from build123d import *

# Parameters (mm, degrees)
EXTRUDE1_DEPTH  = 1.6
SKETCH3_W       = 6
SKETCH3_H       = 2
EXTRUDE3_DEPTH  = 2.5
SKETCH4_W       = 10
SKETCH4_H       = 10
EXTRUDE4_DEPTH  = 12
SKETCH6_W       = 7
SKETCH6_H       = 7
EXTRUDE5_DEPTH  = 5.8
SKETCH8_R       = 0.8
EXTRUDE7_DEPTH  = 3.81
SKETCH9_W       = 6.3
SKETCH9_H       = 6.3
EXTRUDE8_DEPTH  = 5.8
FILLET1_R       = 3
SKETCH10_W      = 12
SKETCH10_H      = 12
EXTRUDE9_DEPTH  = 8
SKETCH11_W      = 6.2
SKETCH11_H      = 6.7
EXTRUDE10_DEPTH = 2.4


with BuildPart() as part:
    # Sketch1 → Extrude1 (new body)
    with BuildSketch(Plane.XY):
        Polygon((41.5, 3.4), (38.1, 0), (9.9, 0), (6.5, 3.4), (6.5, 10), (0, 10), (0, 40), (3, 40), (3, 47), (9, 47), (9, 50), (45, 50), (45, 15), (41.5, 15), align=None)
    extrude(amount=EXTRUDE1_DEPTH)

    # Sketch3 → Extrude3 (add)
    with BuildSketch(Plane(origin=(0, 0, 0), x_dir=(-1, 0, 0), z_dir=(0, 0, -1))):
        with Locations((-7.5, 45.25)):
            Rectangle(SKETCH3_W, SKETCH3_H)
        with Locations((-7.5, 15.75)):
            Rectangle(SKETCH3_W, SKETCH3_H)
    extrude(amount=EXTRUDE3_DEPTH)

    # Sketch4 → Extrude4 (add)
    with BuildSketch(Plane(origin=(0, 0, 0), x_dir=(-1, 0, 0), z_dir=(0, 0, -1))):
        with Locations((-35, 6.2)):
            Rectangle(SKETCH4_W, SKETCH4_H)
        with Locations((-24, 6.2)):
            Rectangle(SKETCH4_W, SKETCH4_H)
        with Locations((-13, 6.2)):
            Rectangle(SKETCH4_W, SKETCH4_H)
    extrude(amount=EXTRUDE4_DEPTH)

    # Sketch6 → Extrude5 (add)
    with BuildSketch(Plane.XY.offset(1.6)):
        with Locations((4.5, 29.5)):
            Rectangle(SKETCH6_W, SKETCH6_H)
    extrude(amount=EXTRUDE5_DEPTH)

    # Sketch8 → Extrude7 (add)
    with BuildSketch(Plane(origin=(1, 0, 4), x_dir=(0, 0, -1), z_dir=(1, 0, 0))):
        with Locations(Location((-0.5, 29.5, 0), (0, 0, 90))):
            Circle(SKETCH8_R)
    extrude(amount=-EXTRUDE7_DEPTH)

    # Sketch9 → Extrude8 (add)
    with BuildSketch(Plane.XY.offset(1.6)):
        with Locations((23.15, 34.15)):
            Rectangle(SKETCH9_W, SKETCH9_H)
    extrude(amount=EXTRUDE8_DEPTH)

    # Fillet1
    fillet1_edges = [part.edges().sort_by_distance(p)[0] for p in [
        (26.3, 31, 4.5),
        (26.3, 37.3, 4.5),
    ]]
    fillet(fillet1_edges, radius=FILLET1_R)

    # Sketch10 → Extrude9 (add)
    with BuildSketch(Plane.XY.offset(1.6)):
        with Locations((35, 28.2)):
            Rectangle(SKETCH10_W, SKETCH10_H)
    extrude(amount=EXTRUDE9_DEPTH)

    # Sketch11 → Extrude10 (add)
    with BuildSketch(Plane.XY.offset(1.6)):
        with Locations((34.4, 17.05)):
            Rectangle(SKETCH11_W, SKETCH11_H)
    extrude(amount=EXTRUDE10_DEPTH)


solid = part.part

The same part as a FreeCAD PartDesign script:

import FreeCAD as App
import Part
import Sketcher

V = App.Vector


def edges_at(feature, points):
    """Names of the edges that pass closest to the given points."""
    edges = feature.Shape.Edges
    near = lambda p: min(range(len(edges)), key=lambda i: edges[i].distToShape(Part.Vertex(*p))[0])
    return sorted({f"Edge{near(p) + 1}" for p in points})

doc = App.newDocument("Part")
params = doc.addObject("Spreadsheet::Sheet", "Params")
for row, (alias, value) in enumerate([
    ("sketch1_width", "36 mm"),
    ("sketch1_width2", "6 mm"),
    ("sketch1_width3", "3 mm"),
    ("sketch1_height", "35 mm"),
    ("sketch1_height2", "7 mm"),
    ("pad1_length", "1.6 mm"),
    ("sketch2_width", "6 mm"),
    ("sketch2_height", "2 mm"),
    ("pad2_length", "2.5 mm"),
    ("sketch3_width", "10 mm"),
    ("pad3_length", "12 mm"),
    ("sketch4_width", "7 mm"),
    ("pad4_length", "5.8 mm"),
    ("sketch5_diameter", "1.6 mm"),
    ("pad5_length", "3.81 mm"),
    ("sketch6_width", "6.3 mm"),
    ("pad6_length", "5.8 mm"),
    ("fillet_radius", "3 mm"),
    ("sketch7_width", "12 mm"),
    ("pad7_length", "8 mm"),
    ("sketch8_width", "6.2 mm"),
    ("sketch8_height", "6.7 mm"),
    ("pad8_length", "2.4 mm"),
], start=1):
    params.set(f"A{row}", alias)
    params.set(f"B{row}", "=" + value)
    params.setAlias(f"B{row}", alias)

body = doc.addObject("PartDesign::Body", "Body")

# Sketch on XY plane
sketch1 = doc.addObject("Sketcher::SketchObject", "Sketch")
body.addObject(sketch1)
sketch1.AttachmentSupport = (doc.XY_Plane, [""])
sketch1.MapMode = "FlatFace"
sketch1.addGeometry([
    Part.LineSegment(V(38.1, 0, 0), V(41.5, 3.4, 0)),  # 0
    Part.LineSegment(V(41.5, 3.4, 0), V(41.5, 15, 0)),  # 1
    Part.LineSegment(V(41.5, 15, 0), V(45, 15, 0)),  # 2
    Part.LineSegment(V(45, 15, 0), V(45, 50, 0)),  # 3
    Part.LineSegment(V(45, 50, 0), V(9, 50, 0)),  # 4
    Part.LineSegment(V(9, 50, 0), V(9, 47, 0)),  # 5
    Part.LineSegment(V(9, 47, 0), V(3, 47, 0)),  # 6
    Part.LineSegment(V(3, 47, 0), V(3, 40, 0)),  # 7
    Part.LineSegment(V(3, 40, 0), V(0, 40, 0)),  # 8
    Part.LineSegment(V(0, 40, 0), V(0, 10, 0)),  # 9
    Part.LineSegment(V(0, 10, 0), V(6.5, 10, 0)),  # 10
    Part.LineSegment(V(6.5, 10, 0), V(6.5, 3.4, 0)),  # 11
    Part.LineSegment(V(6.5, 3.4, 0), V(9.9, 0, 0)),  # 12
    Part.LineSegment(V(9.9, 0, 0), V(38.1, 0, 0)),  # 13
], False)
sketch1.addConstraint([
    Sketcher.Constraint("Coincident", 0, 2, 1, 1),
    Sketcher.Constraint("Coincident", 1, 2, 2, 1),
    Sketcher.Constraint("Coincident", 2, 2, 3, 1),
    Sketcher.Constraint("Coincident", 3, 2, 4, 1),
    Sketcher.Constraint("Coincident", 4, 2, 5, 1),
    Sketcher.Constraint("Coincident", 5, 2, 6, 1),
    Sketcher.Constraint("Coincident", 6, 2, 7, 1),
    Sketcher.Constraint("Coincident", 7, 2, 8, 1),
    Sketcher.Constraint("Coincident", 8, 2, 9, 1),
    Sketcher.Constraint("Coincident", 9, 2, 10, 1),
    Sketcher.Constraint("Coincident", 10, 2, 11, 1),
    Sketcher.Constraint("Coincident", 11, 2, 12, 1),
    Sketcher.Constraint("Coincident", 12, 2, 13, 1),
    Sketcher.Constraint("Coincident", 13, 2, 0, 1),
    Sketcher.Constraint("Vertical", 1),
    Sketcher.Constraint("Horizontal", 2),
    Sketcher.Constraint("Vertical", 3),
    Sketcher.Constraint("Horizontal", 4),
    Sketcher.Constraint("Vertical", 5),
    Sketcher.Constraint("Horizontal", 6),
    Sketcher.Constraint("Vertical", 7),
    Sketcher.Constraint("Horizontal", 8),
    Sketcher.Constraint("Vertical", 9),
    Sketcher.Constraint("Horizontal", 10),
    Sketcher.Constraint("Vertical", 11),
    Sketcher.Constraint("Horizontal", 13),
    Sketcher.Constraint("PointOnObject", 8, 2, -2),
    Sketcher.Constraint("PointOnObject", 12, 2, -1),
    Sketcher.Constraint("Perpendicular", 0, 12),
    Sketcher.Constraint("Horizontal", 0, 2, 11, 2),
    Sketcher.Constraint("Equal", 8, 5),
    Sketcher.Constraint("Equal", 0, 12),
    Sketcher.Constraint("DistanceX", 4, 2, 4, 1, 36.0),
    Sketcher.Constraint("DistanceX", 6, 2, 6, 1, 6.0),
    Sketcher.Constraint("DistanceX", 8, 2, 8, 1, 3.0),
    Sketcher.Constraint("DistanceY", 3, 1, 3, 2, 35.0),
    Sketcher.Constraint("DistanceY", 7, 2, 7, 1, 7.0),
    Sketcher.Constraint("DistanceY", 9, 2, 9, 1, 30.0),
    Sketcher.Constraint("DistanceX", 2, 1, 2, 2, 3.5),
    Sketcher.Constraint("DistanceX", 10, 1, 10, 2, 6.5),
    Sketcher.Constraint("DistanceX", 13, 1, 13, 2, 28.2),
    Sketcher.Constraint("DistanceY", 1, 1, 1, 2, 11.6),
])
sketch1.setExpression("Constraints[32]", "Params.sketch1_width")
sketch1.setExpression("Constraints[33]", "Params.sketch1_width2")
sketch1.setExpression("Constraints[34]", "Params.sketch1_width3")
sketch1.setExpression("Constraints[35]", "Params.sketch1_height")
sketch1.setExpression("Constraints[36]", "Params.sketch1_height2")
pad1 = doc.addObject("PartDesign::Pad", "Pad")
body.addObject(pad1)
pad1.Profile = sketch1
pad1.setExpression("Length", "Params.pad1_length")

# Sketch on XY plane
sketch2 = doc.addObject("Sketcher::SketchObject", "Sketch001")
body.addObject(sketch2)
sketch2.AttachmentSupport = (doc.XY_Plane, [""])
sketch2.MapMode = "FlatFace"
sketch2.addGeometry([
    Part.LineSegment(V(10.5, 46.25, 0), V(10.5, 44.25, 0)),  # 0
    Part.LineSegment(V(10.5, 44.25, 0), V(4.5, 44.25, 0)),  # 1
    Part.LineSegment(V(4.5, 44.25, 0), V(4.5, 46.25, 0)),  # 2
    Part.LineSegment(V(4.5, 46.25, 0), V(10.5, 46.25, 0)),  # 3
    Part.LineSegment(V(10.5, 16.75, 0), V(10.5, 14.75, 0)),  # 4
    Part.LineSegment(V(10.5, 14.75, 0), V(4.5, 14.75, 0)),  # 5
    Part.LineSegment(V(4.5, 14.75, 0), V(4.5, 16.75, 0)),  # 6
    Part.LineSegment(V(4.5, 16.75, 0), V(10.5, 16.75, 0)),  # 7
], False)
sketch2.addConstraint([
    Sketcher.Constraint("Coincident", 0, 2, 1, 1),
    Sketcher.Constraint("Coincident", 1, 2, 2, 1),
    Sketcher.Constraint("Coincident", 2, 2, 3, 1),
    Sketcher.Constraint("Coincident", 3, 2, 0, 1),
    Sketcher.Constraint("Coincident", 4, 2, 5, 1),
    Sketcher.Constraint("Coincident", 5, 2, 6, 1),
    Sketcher.Constraint("Coincident", 6, 2, 7, 1),
    Sketcher.Constraint("Coincident", 7, 2, 4, 1),
    Sketcher.Constraint("Vertical", 0),
    Sketcher.Constraint("Horizontal", 1),
    Sketcher.Constraint("Vertical", 2),
    Sketcher.Constraint("Horizontal", 3),
    Sketcher.Constraint("Vertical", 4),
    Sketcher.Constraint("Horizontal", 5),
    Sketcher.Constraint("Vertical", 6),
    Sketcher.Constraint("Horizontal", 7),
    Sketcher.Constraint("Vertical", 3, 2, 4, 2),
    Sketcher.Constraint("Vertical", 2, 2, 5, 2),
    Sketcher.Constraint("Equal", 2, 4),
    Sketcher.Constraint("DistanceX", 1, 2, 1, 1, 6.0),
    Sketcher.Constraint("DistanceY", 0, 2, 0, 1, 2.0),
    Sketcher.Constraint("DistanceX", -1, 1, 0, 2, 10.5),
    Sketcher.Constraint("DistanceY", 4, 2, 0, 2, 29.5),
    Sketcher.Constraint("DistanceY", -1, 1, 0, 2, 44.25),
])
sketch2.setExpression("Constraints[19]", "Params.sketch2_width")
sketch2.setExpression("Constraints[20]", "Params.sketch2_height")
pad2 = doc.addObject("PartDesign::Pad", "Pad001")
body.addObject(pad2)
pad2.Profile = sketch2
pad2.setExpression("Length", "Params.pad2_length")
pad2.Reversed = True

# Sketch on XY plane
sketch3 = doc.addObject("Sketcher::SketchObject", "Sketch002")
body.addObject(sketch3)
sketch3.AttachmentSupport = (doc.XY_Plane, [""])
sketch3.MapMode = "FlatFace"
sketch3.addGeometry([
    Part.LineSegment(V(40, 11.2, 0), V(40, 1.2, 0)),  # 0
    Part.LineSegment(V(40, 1.2, 0), V(30, 1.2, 0)),  # 1
    Part.LineSegment(V(30, 1.2, 0), V(30, 11.2, 0)),  # 2
    Part.LineSegment(V(30, 11.2, 0), V(40, 11.2, 0)),  # 3
    Part.LineSegment(V(29, 11.2, 0), V(29, 1.2, 0)),  # 4
    Part.LineSegment(V(29, 1.2, 0), V(19, 1.2, 0)),  # 5
    Part.LineSegment(V(19, 1.2, 0), V(19, 11.2, 0)),  # 6
    Part.LineSegment(V(19, 11.2, 0), V(29, 11.2, 0)),  # 7
    Part.LineSegment(V(18, 11.2, 0), V(18, 1.2, 0)),  # 8
    Part.LineSegment(V(18, 1.2, 0), V(8, 1.2, 0)),  # 9
    Part.LineSegment(V(8, 1.2, 0), V(8, 11.2, 0)),  # 10
    Part.LineSegment(V(8, 11.2, 0), V(18, 11.2, 0)),  # 11
], False)
sketch3.addConstraint([
    Sketcher.Constraint("Coincident", 0, 2, 1, 1),
    Sketcher.Constraint("Coincident", 1, 2, 2, 1),
    Sketcher.Constraint("Coincident", 2, 2, 3, 1),
    Sketcher.Constraint("Coincident", 3, 2, 0, 1),
    Sketcher.Constraint("Coincident", 4, 2, 5, 1),
    Sketcher.Constraint("Coincident", 5, 2, 6, 1),
    Sketcher.Constraint("Coincident", 6, 2, 7, 1),
    Sketcher.Constraint("Coincident", 7, 2, 4, 1),
    Sketcher.Constraint("Coincident", 8, 2, 9, 1),
    Sketcher.Constraint("Coincident", 9, 2, 10, 1),
    Sketcher.Constraint("Coincident", 10, 2, 11, 1),
    Sketcher.Constraint("Coincident", 11, 2, 8, 1),
    Sketcher.Constraint("Vertical", 0),
    Sketcher.Constraint("Horizontal", 1),
    Sketcher.Constraint("Vertical", 2),
    Sketcher.Constraint("Horizontal", 3),
    Sketcher.Constraint("Vertical", 4),
    Sketcher.Constraint("Horizontal", 5),
    Sketcher.Constraint("Vertical", 6),
    Sketcher.Constraint("Horizontal", 7),
    Sketcher.Constraint("Vertical", 8),
    Sketcher.Constraint("Horizontal", 9),
    Sketcher.Constraint("Vertical", 10),
    Sketcher.Constraint("Horizontal", 11),
    Sketcher.Constraint("Horizontal", 1, 2, 4, 2),
    Sketcher.Constraint("Horizontal", 3, 2, 6, 2),
    Sketcher.Constraint("Horizontal", 5, 2, 8, 2),
    Sketcher.Constraint("Horizontal", 7, 2, 10, 2),
    Sketcher.Constraint("Equal", 3, 5),
    Sketcher.Constraint("Equal", 7, 9),
    Sketcher.Constraint("Equal", 11, 0),
    Sketcher.Constraint("DistanceX", 1, 2, 1, 1, 10.0),
    Sketcher.Constraint("DistanceX", -1, 1, 0, 2, 40.0),
    Sketcher.Constraint("DistanceX", -1, 1, 4, 2, 29.0),
    Sketcher.Constraint("DistanceX", -1, 1, 8, 2, 18.0),
    Sketcher.Constraint("DistanceY", -1, 1, 0, 2, 1.2),
])
sketch3.setExpression("Constraints[31]", "Params.sketch3_width")
pad3 = doc.addObject("PartDesign::Pad", "Pad002")
body.addObject(pad3)
pad3.Profile = sketch3
pad3.setExpression("Length", "Params.pad3_length")
pad3.Reversed = True

# Sketch on XY plane
sketch4 = doc.addObject("Sketcher::SketchObject", "Sketch003")
body.addObject(sketch4)
sketch4.AttachmentSupport = (doc.XY_Plane, [""])
sketch4.MapMode = "FlatFace"
sketch4.AttachmentOffset = App.Placement(V(0, 0, 1.6), App.Rotation())
sketch4.addGeometry([
    Part.LineSegment(V(1, 33, 0), V(1, 26, 0)),
    Part.LineSegment(V(1, 26, 0), V(8, 26, 0)),
    Part.LineSegment(V(8, 26, 0), V(8, 33, 0)),
    Part.LineSegment(V(8, 33, 0), V(1, 33, 0)),
], False)
sketch4.addConstraint([
    Sketcher.Constraint("Coincident", 0, 2, 1, 1),
    Sketcher.Constraint("Coincident", 1, 2, 2, 1),
    Sketcher.Constraint("Coincident", 2, 2, 3, 1),
    Sketcher.Constraint("Coincident", 3, 2, 0, 1),
    Sketcher.Constraint("Vertical", 0),
    Sketcher.Constraint("Horizontal", 1),
    Sketcher.Constraint("Vertical", 2),
    Sketcher.Constraint("Horizontal", 3),
    Sketcher.Constraint("Equal", 3, 0),
    Sketcher.Constraint("DistanceX", 1, 1, 1, 2, 7.0),
    Sketcher.Constraint("DistanceX", -1, 1, 0, 2, 1.0),
    Sketcher.Constraint("DistanceY", -1, 1, 0, 2, 26.0),
])
sketch4.setExpression("Constraints[9]", "Params.sketch4_width")
pad4 = doc.addObject("PartDesign::Pad", "Pad003")
body.addObject(pad4)
pad4.Profile = sketch4
pad4.setExpression("Length", "Params.pad4_length")

# Sketch on YZ plane
sketch5 = doc.addObject("Sketcher::SketchObject", "Sketch004")
body.addObject(sketch5)
sketch5.AttachmentSupport = (doc.YZ_Plane, [""])
sketch5.MapMode = "FlatFace"
sketch5.AttachmentOffset = App.Placement(V(0, 0, 1), App.Rotation())
sketch5.addGeometry(Part.Circle(V(29.5, 4.5, 0), V(0, 0, 1), 0.8), False)
sketch5.addConstraint([
    Sketcher.Constraint("Diameter", 0, 1.6),
    Sketcher.Constraint("DistanceX", -1, 1, 0, 3, 29.5),
    Sketcher.Constraint("DistanceY", -1, 1, 0, 3, 4.5),
])
sketch5.setExpression("Constraints[0]", "Params.sketch5_diameter")
pad5 = doc.addObject("PartDesign::Pad", "Pad004")
body.addObject(pad5)
pad5.Profile = sketch5
pad5.setExpression("Length", "Params.pad5_length")
pad5.Reversed = True

# Sketch on XY plane
sketch6 = doc.addObject("Sketcher::SketchObject", "Sketch005")
body.addObject(sketch6)
sketch6.AttachmentSupport = (doc.XY_Plane, [""])
sketch6.MapMode = "FlatFace"
sketch6.AttachmentOffset = App.Placement(V(0, 0, 1.6), App.Rotation())
sketch6.addGeometry([
    Part.LineSegment(V(20, 37.3, 0), V(20, 31, 0)),
    Part.LineSegment(V(20, 31, 0), V(26.3, 31, 0)),
    Part.LineSegment(V(26.3, 31, 0), V(26.3, 37.3, 0)),
    Part.LineSegment(V(26.3, 37.3, 0), V(20, 37.3, 0)),
], False)
sketch6.addConstraint([
    Sketcher.Constraint("Coincident", 0, 2, 1, 1),
    Sketcher.Constraint("Coincident", 1, 2, 2, 1),
    Sketcher.Constraint("Coincident", 2, 2, 3, 1),
    Sketcher.Constraint("Coincident", 3, 2, 0, 1),
    Sketcher.Constraint("Vertical", 0),
    Sketcher.Constraint("Horizontal", 1),
    Sketcher.Constraint("Vertical", 2),
    Sketcher.Constraint("Horizontal", 3),
    Sketcher.Constraint("Equal", 3, 0),
    Sketcher.Constraint("DistanceX", 1, 1, 1, 2, 6.3),
    Sketcher.Constraint("DistanceX", -1, 1, 0, 2, 20.0),
    Sketcher.Constraint("DistanceY", -1, 1, 0, 2, 31.0),
])
sketch6.setExpression("Constraints[9]", "Params.sketch6_width")
pad6 = doc.addObject("PartDesign::Pad", "Pad005")
body.addObject(pad6)
pad6.Profile = sketch6
pad6.setExpression("Length", "Params.pad6_length")
doc.recompute()

fillet = doc.addObject("PartDesign::Fillet", "Fillet")
body.addObject(fillet)
fillet.Base = (pad6, edges_at(pad6, [(26.3, 31, 4.5), (26.3, 37.3, 4.5)]))
fillet.setExpression("Radius", "Params.fillet_radius")

# Sketch on XY plane
sketch7 = doc.addObject("Sketcher::SketchObject", "Sketch006")
body.addObject(sketch7)
sketch7.AttachmentSupport = (doc.XY_Plane, [""])
sketch7.MapMode = "FlatFace"
sketch7.AttachmentOffset = App.Placement(V(0, 0, 1.6), App.Rotation())
sketch7.addGeometry([
    Part.LineSegment(V(29, 34.2, 0), V(29, 22.2, 0)),
    Part.LineSegment(V(29, 22.2, 0), V(41, 22.2, 0)),
    Part.LineSegment(V(41, 22.2, 0), V(41, 34.2, 0)),
    Part.LineSegment(V(41, 34.2, 0), V(29, 34.2, 0)),
], False)
sketch7.addConstraint([
    Sketcher.Constraint("Coincident", 0, 2, 1, 1),
    Sketcher.Constraint("Coincident", 1, 2, 2, 1),
    Sketcher.Constraint("Coincident", 2, 2, 3, 1),
    Sketcher.Constraint("Coincident", 3, 2, 0, 1),
    Sketcher.Constraint("Vertical", 0),
    Sketcher.Constraint("Horizontal", 1),
    Sketcher.Constraint("Vertical", 2),
    Sketcher.Constraint("Horizontal", 3),
    Sketcher.Constraint("Equal", 3, 0),
    Sketcher.Constraint("DistanceX", 1, 1, 1, 2, 12.0),
    Sketcher.Constraint("DistanceX", -1, 1, 0, 2, 29.0),
    Sketcher.Constraint("DistanceY", -1, 1, 0, 2, 22.2),
])
sketch7.setExpression("Constraints[9]", "Params.sketch7_width")
pad7 = doc.addObject("PartDesign::Pad", "Pad006")
body.addObject(pad7)
pad7.Profile = sketch7
pad7.setExpression("Length", "Params.pad7_length")

# Sketch on XY plane
sketch8 = doc.addObject("Sketcher::SketchObject", "Sketch007")
body.addObject(sketch8)
sketch8.AttachmentSupport = (doc.XY_Plane, [""])
sketch8.MapMode = "FlatFace"
sketch8.AttachmentOffset = App.Placement(V(0, 0, 1.6), App.Rotation())
sketch8.addGeometry([
    Part.LineSegment(V(31.3, 20.4, 0), V(31.3, 13.7, 0)),
    Part.LineSegment(V(31.3, 13.7, 0), V(37.5, 13.7, 0)),
    Part.LineSegment(V(37.5, 13.7, 0), V(37.5, 20.4, 0)),
    Part.LineSegment(V(37.5, 20.4, 0), V(31.3, 20.4, 0)),
], False)
sketch8.addConstraint([
    Sketcher.Constraint("Coincident", 0, 2, 1, 1),
    Sketcher.Constraint("Coincident", 1, 2, 2, 1),
    Sketcher.Constraint("Coincident", 2, 2, 3, 1),
    Sketcher.Constraint("Coincident", 3, 2, 0, 1),
    Sketcher.Constraint("Vertical", 0),
    Sketcher.Constraint("Horizontal", 1),
    Sketcher.Constraint("Vertical", 2),
    Sketcher.Constraint("Horizontal", 3),
    Sketcher.Constraint("DistanceX", 1, 1, 1, 2, 6.2),
    Sketcher.Constraint("DistanceY", 0, 2, 0, 1, 6.7),
    Sketcher.Constraint("DistanceX", -1, 1, 0, 2, 31.3),
    Sketcher.Constraint("DistanceY", -1, 1, 0, 2, 13.7),
])
sketch8.setExpression("Constraints[8]", "Params.sketch8_width")
sketch8.setExpression("Constraints[9]", "Params.sketch8_height")
pad8 = doc.addObject("PartDesign::Pad", "Pad007")
body.addObject(pad8)
pad8.Profile = sketch8
pad8.setExpression("Length", "Params.pad8_length")

doc.recompute()
